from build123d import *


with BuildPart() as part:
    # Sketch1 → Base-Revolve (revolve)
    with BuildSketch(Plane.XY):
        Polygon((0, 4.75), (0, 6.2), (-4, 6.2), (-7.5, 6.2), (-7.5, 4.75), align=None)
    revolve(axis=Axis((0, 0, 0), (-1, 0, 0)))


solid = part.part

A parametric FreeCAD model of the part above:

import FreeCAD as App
import Part
import Sketcher


def add_polygon(sketch, points):
    """Adds a closed chain of lines whose ends are joined by coincident constraints."""
    first, n = sketch.GeometryCount, len(points)
    for a, b in zip(points, points[1:] + points[:1]):
        sketch.addGeometry(Part.LineSegment(App.Vector(*a, 0), App.Vector(*b, 0)), False)
    for i in range(n):
        sketch.addConstraint(Sketcher.Constraint("Coincident", first + i, 2, first + (i + 1) % n, 1))

doc = App.newDocument("Part")
body = doc.addObject("PartDesign::Body", "Body")

sketch1 = doc.addObject("Sketcher::SketchObject", "Sketch")
body.addObject(sketch1)
sketch1.AttachmentSupport = (doc.XY_Plane, [""])
sketch1.MapMode = "FlatFace"
add_polygon(sketch1, [(0, 4.8), (0, 6.2), (-7.5, 6.2), (-7.5, 4.8)])
sketch1.addConstraint(Sketcher.Constraint("Vertical", 0))
sketch1.addConstraint(Sketcher.Constraint("Horizontal", 1))
sketch1.addConstraint(Sketcher.Constraint("Vertical", 2))
sketch1.addConstraint(Sketcher.Constraint("Horizontal", 3))
sketch1.addConstraint(Sketcher.Constraint("PointOnObject", 0, 2, -2))
sketch1.addConstraint(Sketcher.Constraint("DistanceX", 1, 2, 1, 1, 7.5))
sketch1.addConstraint(Sketcher.Constraint("DistanceY", 0, 1, 0, 2, 1.45))
sketch1.addConstraint(Sketcher.Constraint("DistanceY", -1, 1, 0, 2, 6.2))
revolution = doc.addObject("PartDesign::Revolution", "Revolution")
body.addObject(revolution)
revolution.Profile = sketch1
revolution.ReferenceAxis = (sketch1, ["H_Axis"])
revolution.Angle = 360

doc.recompute()
